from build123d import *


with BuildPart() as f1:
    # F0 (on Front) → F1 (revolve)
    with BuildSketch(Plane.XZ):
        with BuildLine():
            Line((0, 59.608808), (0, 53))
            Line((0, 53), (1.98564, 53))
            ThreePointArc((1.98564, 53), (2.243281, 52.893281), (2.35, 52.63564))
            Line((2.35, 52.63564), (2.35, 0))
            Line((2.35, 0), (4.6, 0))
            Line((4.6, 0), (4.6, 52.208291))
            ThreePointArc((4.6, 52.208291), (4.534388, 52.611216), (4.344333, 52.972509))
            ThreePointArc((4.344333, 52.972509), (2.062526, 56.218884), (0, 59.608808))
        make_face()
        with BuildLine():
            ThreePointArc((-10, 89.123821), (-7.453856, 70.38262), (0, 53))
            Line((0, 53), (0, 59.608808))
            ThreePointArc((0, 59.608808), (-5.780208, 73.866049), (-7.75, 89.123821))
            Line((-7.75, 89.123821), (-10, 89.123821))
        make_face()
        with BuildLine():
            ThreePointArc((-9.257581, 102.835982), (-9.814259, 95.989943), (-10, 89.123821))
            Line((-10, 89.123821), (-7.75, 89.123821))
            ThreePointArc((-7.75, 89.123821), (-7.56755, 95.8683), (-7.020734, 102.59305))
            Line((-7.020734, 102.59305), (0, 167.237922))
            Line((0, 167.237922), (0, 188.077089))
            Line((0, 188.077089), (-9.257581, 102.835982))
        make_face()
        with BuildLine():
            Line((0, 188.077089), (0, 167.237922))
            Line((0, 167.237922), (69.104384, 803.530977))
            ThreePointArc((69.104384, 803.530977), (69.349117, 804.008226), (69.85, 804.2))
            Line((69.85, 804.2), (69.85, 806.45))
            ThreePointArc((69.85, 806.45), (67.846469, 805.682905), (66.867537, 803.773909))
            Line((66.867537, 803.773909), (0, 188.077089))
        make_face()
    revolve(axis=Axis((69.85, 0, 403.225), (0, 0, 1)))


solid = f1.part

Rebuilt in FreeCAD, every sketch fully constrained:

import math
import FreeCAD as App
import Part
import Sketcher

V = App.Vector
Q = App.Units.Quantity

doc = App.newDocument("Part")
body = doc.addObject("PartDesign::Body", "Body")

# Sketch on XZ plane
sketch1 = body.newObject("Sketcher::SketchObject", "Sketch")
sketch1.AttachmentSupport = (doc.getObject("XZ_Plane"), [""])
sketch1.MapMode = "FlatFace"
sketch1.addGeometry([
    Part.LineSegment(V(0, 53, 0), V(1.98564, 53, 0)),  # 0
    Part.ArcOfCircle(Part.Circle(V(1.985639, 52.635639, 0), V(0, 0, 1), 0.364361), math.radians(0.000229), math.radians(89.999771)),  # 1
    Part.LineSegment(V(2.35, 52.63564, 0), V(2.35, 0, 0)),  # 2
    Part.LineSegment(V(2.35, 0, 0), V(4.6, 0, 0)),  # 3
    Part.LineSegment(V(4.6, 0, 0), V(4.6, 52.208291, 0)),  # 4
    Part.ArcOfCircle(Part.Circle(V(3.329991, 52.208288, 0), V(0, 0, 1), 1.270009), math.radians(0.000124), math.radians(36.994918)),  # 5
    Part.ArcOfCircle(Part.Circle(V(52.327355, 89.123844, 0), V(0, 0, 1), 60.077362), math.radians(-150.575001), math.radians(-143.004924)),  # 6
    Part.ArcOfCircle(Part.Circle(V(52.327315, 89.123819, 0), V(0, 0, 1), 60.077315), math.radians(179.999998), math.radians(209.424997)),  # 7
    Part.ArcOfCircle(Part.Circle(V(117.000098, 89.123819, 0), V(0, 0, 1), 124.750098), math.radians(173.801709), math.radians(179.999999)),  # 8
    Part.LineSegment(V(-7.020734, 102.59305, 0), V(0, 167.237922, 0)),  # 9
    Part.LineSegment(V(0, 167.237922, 0), V(69.104384, 803.530977, 0)),  # 10
    Part.ArcOfCircle(Part.Circle(V(69.85, 803.449999, 0), V(0, 0, 1), 0.750001), math.radians(90.000013), math.radians(173.801692)),  # 11
    Part.LineSegment(V(69.85, 804.2, 0), V(69.85, 806.45, 0)),  # 12
    Part.ArcOfCircle(Part.Circle(V(69.85, 803.45, 0), V(0, 0, 1), 3), math.radians(89.999996), math.radians(173.801707)),  # 13
    Part.LineSegment(V(66.867537, 803.773909, 0), V(0, 188.077089, 0)),  # 14
    Part.LineSegment(V(0, 188.077089, 0), V(-9.257581, 102.835982, 0)),  # 15
    Part.ArcOfCircle(Part.Circle(V(117.000384, 89.123805, 0), V(0, 0, 1), 127.000384), math.radians(173.801716), math.radians(179.999993)),  # 16
    Part.ArcOfCircle(Part.Circle(V(60.246533, 89.123824, 0), V(0, 0, 1), 70.246533), math.radians(-179.999998), math.radians(-149.053096)),  # 17
], False)
sketch1.addGeometry(Part.LineSegment(V(69.85, 0, 0), V(69.85, 806.45, 0)), True)  # axis
sketch1.addConstraint([
    Sketcher.Constraint("Coincident", 0, 2, 1, 2),
    Sketcher.Constraint("Coincident", 1, 1, 2, 1),
    Sketcher.Constraint("Coincident", 2, 2, 3, 1),
    Sketcher.Constraint("Coincident", 3, 2, 4, 1),
    Sketcher.Constraint("Coincident", 4, 2, 5, 1),
    Sketcher.Constraint("Coincident", 5, 2, 6, 2),
    Sketcher.Constraint("Coincident", 6, 1, 7, 2),
    Sketcher.Constraint("Coincident", 7, 1, 8, 2),
    Sketcher.Constraint("Coincident", 8, 1, 9, 1),
    Sketcher.Constraint("Coincident", 9, 2, 10, 1),
    Sketcher.Constraint("Coincident", 10, 2, 11, 2),
    Sketcher.Constraint("Coincident", 11, 1, 12, 1),
    Sketcher.Constraint("Coincident", 12, 2, 13, 1),
    Sketcher.Constraint("Coincident", 13, 2, 14, 1),
    Sketcher.Constraint("Coincident", 14, 2, 15, 1),
    Sketcher.Constraint("Coincident", 15, 2, 16, 1),
    Sketcher.Constraint("Coincident", 16, 2, 17, 1),
    Sketcher.Constraint("Coincident", 17, 2, 0, 1),
    Sketcher.Constraint("Horizontal", 0),
    Sketcher.Constraint("Vertical", 2),
    Sketcher.Constraint("Horizontal", 3),
    Sketcher.Constraint("Vertical", 4),
    Sketcher.Constraint("Vertical", 12),
    Sketcher.Constraint("Vertical", 18),
    Sketcher.Constraint("Coincident", 13, 3, 11, 3),
    Sketcher.Constraint("Coincident", 18, 2, 12, 2),
    Sketcher.Constraint("PointOnObject", 2, 2, -1),
    Sketcher.Constraint("PointOnObject", 6, 1, -2),
    Sketcher.Constraint("PointOnObject", 9, 2, -2),
    Sketcher.Constraint("PointOnObject", 14, 2, -2),
    Sketcher.Constraint("PointOnObject", 17, 2, -2),
    Sketcher.Constraint("PointOnObject", 18, 1, -1),
    Sketcher.Constraint("Radius", 13, Q("3 mm")),
    Sketcher.Constraint("Radius", 11, Q("0.750001 mm")),
    Sketcher.Constraint("DistanceY", -1, 1, 0, 2, Q("53 mm")),
    Sketcher.Constraint("DistanceX", 16, 2, -1, 1, Q("10 mm")),
    Sketcher.Constraint("DistanceX", 3, 1, 3, 2, Q("2.25 mm")),
    Sketcher.Constraint("DistanceY", 18, 1, 18, 2, Q("806.45 mm")),
    Sketcher.Constraint("DistanceX", -1, 1, 3, 2, Q("4.6 mm")),
    Sketcher.Constraint("Radius", 8, Q("124.750098 mm")),
    Sketcher.Constraint("DistanceX", 7, 1, 1, 1, Q("10.1 mm")),
    Sketcher.Constraint("DistanceX", 2, 2, 18, 1, Q("67.5 mm")),
    Sketcher.Constraint("DistanceX", -1, 1, 11, 3, Q("69.85 mm")),
    Sketcher.Constraint("Radius", 1, Q("0.364361 mm")),
    Sketcher.Constraint("Radius", 5, Q("1.270009 mm")),
    Sketcher.Constraint("Radius", 6, Q("60.077362 mm")),
    Sketcher.Constraint("Radius", 7, Q("60.077315 mm")),
    Sketcher.Constraint("Radius", 16, Q("127.000384 mm")),
    Sketcher.Constraint("Radius", 17, Q("70.246533 mm")),
    Sketcher.Constraint("DistanceX", 0, 1, 0, 2, Q("1.98564 mm")),
    Sketcher.Constraint("DistanceY", 2, 2, 2, 1, Q("52.63564 mm")),
    Sketcher.Constraint("DistanceY", 4, 1, 4, 2, Q("52.208291 mm")),
    Sketcher.Constraint("DistanceY", 5, 2, 6, 1, Q("6.636299 mm")),
    Sketcher.Constraint("DistanceY", 7, 1, 9, 2, Q("78.114101 mm")),
    Sketcher.Constraint("Distance", 14, Q("619.317238 mm")),
    Sketcher.Constraint("Distance", 15, Q("85.742342 mm")),
    Sketcher.Constraint("DistanceY", -1, 1, 5, 3, Q("52.208288 mm")),
    Sketcher.Constraint("DistanceY", -1, 1, 7, 3, Q("89.123819 mm")),
    Sketcher.Constraint("DistanceY", -1, 1, 8, 3, Q("89.123819 mm")),
    Sketcher.Constraint("DistanceY", -1, 1, 7, 1, Q("89.123821 mm")),
    Sketcher.Constraint("DistanceY", -1, 1, 8, 1, Q("102.59305 mm")),
    Sketcher.Constraint("DistanceY", -1, 1, 13, 2, Q("803.773909 mm")),
    Sketcher.Constraint("DistanceX", 15, 2, -1, 1, Q("9.257581 mm")),
    Sketcher.Constraint("DistanceY", -1, 1, 16, 2, Q("89.123821 mm")),
    Sketcher.Constraint("DistanceX", 17, 3, 10, 2, Q("8.857851 mm")),
])
revolution = body.newObject("PartDesign::Revolution", "Revolution")
revolution.Profile = sketch1
revolution.ReferenceAxis = (sketch1, ["Axis0"])
revolution.Angle = 360

doc.recompute()
